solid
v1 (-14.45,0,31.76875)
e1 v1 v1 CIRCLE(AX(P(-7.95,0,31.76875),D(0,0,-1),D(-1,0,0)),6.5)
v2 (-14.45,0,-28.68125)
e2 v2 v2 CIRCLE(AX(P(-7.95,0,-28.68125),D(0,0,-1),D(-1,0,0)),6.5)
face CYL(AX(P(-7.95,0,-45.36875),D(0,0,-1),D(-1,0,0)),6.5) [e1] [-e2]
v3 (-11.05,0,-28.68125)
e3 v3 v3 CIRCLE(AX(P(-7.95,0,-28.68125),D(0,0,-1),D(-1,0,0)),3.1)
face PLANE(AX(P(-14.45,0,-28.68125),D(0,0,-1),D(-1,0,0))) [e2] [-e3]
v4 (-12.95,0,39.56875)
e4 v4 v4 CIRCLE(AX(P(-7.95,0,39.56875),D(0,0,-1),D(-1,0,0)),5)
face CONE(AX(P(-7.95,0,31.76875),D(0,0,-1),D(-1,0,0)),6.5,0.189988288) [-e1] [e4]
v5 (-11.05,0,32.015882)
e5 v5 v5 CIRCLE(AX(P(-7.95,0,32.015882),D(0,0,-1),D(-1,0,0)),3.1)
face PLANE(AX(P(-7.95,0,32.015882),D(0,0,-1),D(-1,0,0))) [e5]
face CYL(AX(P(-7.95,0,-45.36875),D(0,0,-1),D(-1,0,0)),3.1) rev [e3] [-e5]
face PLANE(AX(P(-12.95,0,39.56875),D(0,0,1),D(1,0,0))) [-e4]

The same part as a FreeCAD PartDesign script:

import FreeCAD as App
import Part
import Sketcher

V = App.Vector

doc = App.newDocument("Part")
body = doc.addObject("PartDesign::Body", "Body")

# Sketch on XZ plane
sketch1 = body.newObject("Sketcher::SketchObject", "Sketch")
sketch1.AttachmentSupport = (doc.getObject("XZ_Plane"), [""])
sketch1.MapMode = "FlatFace"
sketch1.addGeometry([
    Part.LineSegment(V(-11.05, -28.68125, 0), V(-14.45, -28.68125, 0)),  # 0
    Part.LineSegment(V(-14.45, -28.68125, 0), V(-14.45, 31.76875, 0)),  # 1
    Part.LineSegment(V(-14.45, 31.76875, 0), V(-12.95, 39.56875, 0)),  # 2
    Part.LineSegment(V(-12.95, 39.56875, 0), V(-7.95, 39.56875, 0)),  # 3
    Part.LineSegment(V(-7.95, 39.56875, 0), V(-7.95, 32.015882, 0)),  # 4
    Part.LineSegment(V(-7.95, 32.015882, 0), V(-11.05, 32.015882, 0)),  # 5
    Part.LineSegment(V(-11.05, 32.015882, 0), V(-11.05, -28.68125, 0)),  # 6
], False)
sketch1.addGeometry(Part.LineSegment(V(-7.95, -28.68125, 0), V(-7.95, 39.56875, 0)), True)  # axis
sketch1.addConstraint([
    Sketcher.Constraint("Coincident", 0, 2, 1, 1),
    Sketcher.Constraint("Coincident", 1, 2, 2, 1),
    Sketcher.Constraint("Coincident", 2, 2, 3, 1),
    Sketcher.Constraint("Coincident", 3, 2, 4, 1),
    Sketcher.Constraint("Coincident", 4, 2, 5, 1),
    Sketcher.Constraint("Coincident", 5, 2, 6, 1),
    Sketcher.Constraint("Coincident", 6, 2, 0, 1),
    Sketcher.Constraint("Horizontal", 0),
    Sketcher.Constraint("Vertical", 1),
    Sketcher.Constraint("Horizontal", 3),
    Sketcher.Constraint("Vertical", 4),
    Sketcher.Constraint("Horizontal", 5),
    Sketcher.Constraint("Vertical", 6),
    Sketcher.Constraint("Vertical", 7),
    Sketcher.Constraint("Coincident", 7, 2, 3, 2),
    Sketcher.Constraint("Horizontal", 6, 2, 7, 1),
    Sketcher.Constraint("DistanceX", 3, 1, 3, 2, 5.0),
    Sketcher.Constraint("DistanceX", 0, 2, 0, 1, 3.4),
    Sketcher.Constraint("DistanceX", 5, 2, 5, 1, 3.1),
    Sketcher.Constraint("DistanceY", 1, 1, 1, 2, 60.45),
    Sketcher.Constraint("DistanceY", 7, 1, 7, 2, 68.25),
    Sketcher.Constraint("DistanceX", 0, 2, -1, 1, 14.45),
    Sketcher.Constraint("DistanceY", 4, 2, 4, 1, 7.552868),
    Sketcher.Constraint("DistanceY", 0, 2, -1, 1, 28.68125),
])
revolution = body.newObject("PartDesign::Revolution", "Revolution")
revolution.Profile = sketch1
revolution.ReferenceAxis = (sketch1, ["Axis0"])
revolution.Angle = 360

doc.recompute()
